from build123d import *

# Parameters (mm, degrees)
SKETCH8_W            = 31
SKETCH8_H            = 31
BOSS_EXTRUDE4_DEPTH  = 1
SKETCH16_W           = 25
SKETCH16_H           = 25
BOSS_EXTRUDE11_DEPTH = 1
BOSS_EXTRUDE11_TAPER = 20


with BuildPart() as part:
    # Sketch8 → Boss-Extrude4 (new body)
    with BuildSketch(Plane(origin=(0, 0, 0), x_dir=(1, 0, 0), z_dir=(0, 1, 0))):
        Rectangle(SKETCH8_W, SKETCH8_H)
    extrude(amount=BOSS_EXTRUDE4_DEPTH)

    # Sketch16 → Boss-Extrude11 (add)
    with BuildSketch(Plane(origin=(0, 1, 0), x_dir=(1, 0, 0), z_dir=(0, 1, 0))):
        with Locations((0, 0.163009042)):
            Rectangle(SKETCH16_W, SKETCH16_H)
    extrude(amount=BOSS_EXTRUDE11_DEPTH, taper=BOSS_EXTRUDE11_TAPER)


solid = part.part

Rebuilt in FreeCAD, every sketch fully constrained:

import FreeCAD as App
import Part
import Sketcher

V = App.Vector
Q = App.Units.Quantity


def add_polygon(sketch, points):
    """Adds a closed chain of lines whose ends are joined by coincident constraints."""
    first, n = sketch.GeometryCount, len(points)
    for a, b in zip(points, points[1:] + points[:1]):
        sketch.addGeometry(Part.LineSegment(App.Vector(*a, 0), App.Vector(*b, 0)), False)
    for i in range(n):
        sketch.addConstraint(Sketcher.Constraint("Coincident", first + i, 2, first + (i + 1) % n, 1))

doc = App.newDocument("Part")
body = doc.addObject("PartDesign::Body", "Body")

# Sketch on XZ plane
sketch1 = doc.addObject("Sketcher::SketchObject", "Sketch")
body.addObject(sketch1)
sketch1.AttachmentSupport = (doc.XZ_Plane, [""])
sketch1.MapMode = "FlatFace"
add_polygon(sketch1, [(-16, -16), (-16, 16), (16, 16), (16, -16)])  # lines 0-3
sketch1.addConstraint([
    Sketcher.Constraint("Vertical", 0),
    Sketcher.Constraint("Horizontal", 1),
    Sketcher.Constraint("Vertical", 2),
    Sketcher.Constraint("Horizontal", 3),
    Sketcher.Constraint("Symmetric", 0, 2, 2, 2, -1, 1),
    Sketcher.Constraint("Equal", 3, 0),
    Sketcher.Constraint("DistanceX", 1, 1, 1, 2, Q("31 mm")),
])
pad1 = doc.addObject("PartDesign::Pad", "Pad")
body.addObject(pad1)
pad1.Profile = sketch1
pad1.Length = 1
pad1.Reversed = True

# Sketch on XZ plane
sketch2 = doc.addObject("Sketcher::SketchObject", "Sketch001")
body.addObject(sketch2)
sketch2.AttachmentSupport = (doc.XZ_Plane, [""])
sketch2.MapMode = "FlatFace"
sketch2.AttachmentOffset = App.Placement(V(0, 0, -1), App.Rotation())
add_polygon(sketch2, [(-12, -13), (-12, 12), (12, 12), (12, -13)])  # lines 0-3
sketch2.addConstraint([
    Sketcher.Constraint("Vertical", 0),
    Sketcher.Constraint("Horizontal", 1),
    Sketcher.Constraint("Vertical", 2),
    Sketcher.Constraint("Horizontal", 3),
    Sketcher.Constraint("Equal", 3, 0),
    Sketcher.Constraint("DistanceX", 1, 1, 1, 2, Q("25 mm")),
    Sketcher.Constraint("DistanceX", 0, 2, -1, 1, Q("12.5 mm")),
    Sketcher.Constraint("DistanceY", -1, 1, 0, 2, Q("12.336991 mm")),
])
pad2 = doc.addObject("PartDesign::Pad", "Pad001")
body.addObject(pad2)
pad2.Profile = sketch2
pad2.Length = 1
pad2.Reversed = True
pad2.TaperAngle = -20

doc.recompute()
